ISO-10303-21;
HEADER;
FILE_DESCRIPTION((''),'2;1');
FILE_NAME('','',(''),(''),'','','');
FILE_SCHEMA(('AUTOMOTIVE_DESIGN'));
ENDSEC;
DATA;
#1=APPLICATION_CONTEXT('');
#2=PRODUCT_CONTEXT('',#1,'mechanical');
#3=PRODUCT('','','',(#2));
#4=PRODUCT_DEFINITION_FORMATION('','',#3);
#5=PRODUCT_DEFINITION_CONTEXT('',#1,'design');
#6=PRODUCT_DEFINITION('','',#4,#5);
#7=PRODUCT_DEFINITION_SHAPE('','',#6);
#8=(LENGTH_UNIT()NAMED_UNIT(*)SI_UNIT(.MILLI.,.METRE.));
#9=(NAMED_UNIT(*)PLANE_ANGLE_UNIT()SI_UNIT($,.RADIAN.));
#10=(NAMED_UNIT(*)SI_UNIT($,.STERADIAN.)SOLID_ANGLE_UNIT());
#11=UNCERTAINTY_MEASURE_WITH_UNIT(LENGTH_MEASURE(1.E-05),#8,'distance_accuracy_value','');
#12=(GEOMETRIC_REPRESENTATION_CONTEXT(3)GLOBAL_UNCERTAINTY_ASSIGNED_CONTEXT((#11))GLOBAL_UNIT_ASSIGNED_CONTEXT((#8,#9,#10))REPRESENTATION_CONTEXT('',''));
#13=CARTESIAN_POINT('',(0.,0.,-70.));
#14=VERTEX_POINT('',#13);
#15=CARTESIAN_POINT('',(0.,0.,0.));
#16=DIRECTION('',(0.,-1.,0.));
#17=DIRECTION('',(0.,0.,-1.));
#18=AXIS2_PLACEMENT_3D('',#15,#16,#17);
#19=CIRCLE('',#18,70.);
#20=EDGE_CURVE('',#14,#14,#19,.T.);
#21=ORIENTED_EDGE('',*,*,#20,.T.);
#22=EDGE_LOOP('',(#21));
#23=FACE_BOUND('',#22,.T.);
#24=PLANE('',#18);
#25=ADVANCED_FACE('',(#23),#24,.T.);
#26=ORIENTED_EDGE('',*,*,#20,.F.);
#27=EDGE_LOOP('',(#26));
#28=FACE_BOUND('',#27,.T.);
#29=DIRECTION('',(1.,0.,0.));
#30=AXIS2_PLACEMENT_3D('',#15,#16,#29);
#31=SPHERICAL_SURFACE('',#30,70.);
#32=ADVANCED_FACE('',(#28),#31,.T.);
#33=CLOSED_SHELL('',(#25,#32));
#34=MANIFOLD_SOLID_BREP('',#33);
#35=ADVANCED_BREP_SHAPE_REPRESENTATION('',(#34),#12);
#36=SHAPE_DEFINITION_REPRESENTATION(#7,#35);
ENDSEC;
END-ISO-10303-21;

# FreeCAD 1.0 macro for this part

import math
import FreeCAD as App
import Part
import Sketcher

doc = App.newDocument("Part")
params = doc.addObject("Spreadsheet::Sheet", "Params")
for row, (alias, value) in enumerate([
    ("sketch1_radius", "70 mm"),
    ("revolution_angle", "360 deg"),
], start=1):
    params.set(f"A{row}", alias)
    params.set(f"B{row}", "=" + value)
    params.setAlias(f"B{row}", alias)

body = doc.addObject("PartDesign::Body", "Body")

sketch1 = doc.addObject("Sketcher::SketchObject", "Sketch")
body.addObject(sketch1)
sketch1.AttachmentSupport = (doc.XY_Plane, [""])
sketch1.MapMode = "FlatFace"
sketch1.addGeometry([
    Part.LineSegment(App.Vector(-70, 0, 0), App.Vector(0, 0, 0)),
    Part.LineSegment(App.Vector(0, 0, 0), App.Vector(0, 70, 0)),
    Part.ArcOfCircle(Part.Circle(App.Vector(0, 0, 0), App.Vector(0, 0, 1), 70), math.radians(90), math.radians(180)),
], False)
sketch1.addConstraint([
    Sketcher.Constraint("Coincident", 0, 2, 1, 1),
    Sketcher.Constraint("Coincident", 1, 2, 2, 1),
    Sketcher.Constraint("Coincident", 2, 2, 0, 1),
    Sketcher.Constraint("Horizontal", 0),
    Sketcher.Constraint("Vertical", 1),
    Sketcher.Constraint("Coincident", 2, 3, -1, 1),
    Sketcher.Constraint("Coincident", 0, 2, -1, 1),
    Sketcher.Constraint("Radius", 2, 70.0),
])
sketch1.setExpression("Constraints[7]", "Params.sketch1_radius")
revolution = doc.addObject("PartDesign::Revolution", "Revolution")
body.addObject(revolution)
revolution.Profile = sketch1
revolution.ReferenceAxis = (sketch1, ["V_Axis"])
revolution.setExpression("Angle", "Params.revolution_angle")

doc.recompute()
